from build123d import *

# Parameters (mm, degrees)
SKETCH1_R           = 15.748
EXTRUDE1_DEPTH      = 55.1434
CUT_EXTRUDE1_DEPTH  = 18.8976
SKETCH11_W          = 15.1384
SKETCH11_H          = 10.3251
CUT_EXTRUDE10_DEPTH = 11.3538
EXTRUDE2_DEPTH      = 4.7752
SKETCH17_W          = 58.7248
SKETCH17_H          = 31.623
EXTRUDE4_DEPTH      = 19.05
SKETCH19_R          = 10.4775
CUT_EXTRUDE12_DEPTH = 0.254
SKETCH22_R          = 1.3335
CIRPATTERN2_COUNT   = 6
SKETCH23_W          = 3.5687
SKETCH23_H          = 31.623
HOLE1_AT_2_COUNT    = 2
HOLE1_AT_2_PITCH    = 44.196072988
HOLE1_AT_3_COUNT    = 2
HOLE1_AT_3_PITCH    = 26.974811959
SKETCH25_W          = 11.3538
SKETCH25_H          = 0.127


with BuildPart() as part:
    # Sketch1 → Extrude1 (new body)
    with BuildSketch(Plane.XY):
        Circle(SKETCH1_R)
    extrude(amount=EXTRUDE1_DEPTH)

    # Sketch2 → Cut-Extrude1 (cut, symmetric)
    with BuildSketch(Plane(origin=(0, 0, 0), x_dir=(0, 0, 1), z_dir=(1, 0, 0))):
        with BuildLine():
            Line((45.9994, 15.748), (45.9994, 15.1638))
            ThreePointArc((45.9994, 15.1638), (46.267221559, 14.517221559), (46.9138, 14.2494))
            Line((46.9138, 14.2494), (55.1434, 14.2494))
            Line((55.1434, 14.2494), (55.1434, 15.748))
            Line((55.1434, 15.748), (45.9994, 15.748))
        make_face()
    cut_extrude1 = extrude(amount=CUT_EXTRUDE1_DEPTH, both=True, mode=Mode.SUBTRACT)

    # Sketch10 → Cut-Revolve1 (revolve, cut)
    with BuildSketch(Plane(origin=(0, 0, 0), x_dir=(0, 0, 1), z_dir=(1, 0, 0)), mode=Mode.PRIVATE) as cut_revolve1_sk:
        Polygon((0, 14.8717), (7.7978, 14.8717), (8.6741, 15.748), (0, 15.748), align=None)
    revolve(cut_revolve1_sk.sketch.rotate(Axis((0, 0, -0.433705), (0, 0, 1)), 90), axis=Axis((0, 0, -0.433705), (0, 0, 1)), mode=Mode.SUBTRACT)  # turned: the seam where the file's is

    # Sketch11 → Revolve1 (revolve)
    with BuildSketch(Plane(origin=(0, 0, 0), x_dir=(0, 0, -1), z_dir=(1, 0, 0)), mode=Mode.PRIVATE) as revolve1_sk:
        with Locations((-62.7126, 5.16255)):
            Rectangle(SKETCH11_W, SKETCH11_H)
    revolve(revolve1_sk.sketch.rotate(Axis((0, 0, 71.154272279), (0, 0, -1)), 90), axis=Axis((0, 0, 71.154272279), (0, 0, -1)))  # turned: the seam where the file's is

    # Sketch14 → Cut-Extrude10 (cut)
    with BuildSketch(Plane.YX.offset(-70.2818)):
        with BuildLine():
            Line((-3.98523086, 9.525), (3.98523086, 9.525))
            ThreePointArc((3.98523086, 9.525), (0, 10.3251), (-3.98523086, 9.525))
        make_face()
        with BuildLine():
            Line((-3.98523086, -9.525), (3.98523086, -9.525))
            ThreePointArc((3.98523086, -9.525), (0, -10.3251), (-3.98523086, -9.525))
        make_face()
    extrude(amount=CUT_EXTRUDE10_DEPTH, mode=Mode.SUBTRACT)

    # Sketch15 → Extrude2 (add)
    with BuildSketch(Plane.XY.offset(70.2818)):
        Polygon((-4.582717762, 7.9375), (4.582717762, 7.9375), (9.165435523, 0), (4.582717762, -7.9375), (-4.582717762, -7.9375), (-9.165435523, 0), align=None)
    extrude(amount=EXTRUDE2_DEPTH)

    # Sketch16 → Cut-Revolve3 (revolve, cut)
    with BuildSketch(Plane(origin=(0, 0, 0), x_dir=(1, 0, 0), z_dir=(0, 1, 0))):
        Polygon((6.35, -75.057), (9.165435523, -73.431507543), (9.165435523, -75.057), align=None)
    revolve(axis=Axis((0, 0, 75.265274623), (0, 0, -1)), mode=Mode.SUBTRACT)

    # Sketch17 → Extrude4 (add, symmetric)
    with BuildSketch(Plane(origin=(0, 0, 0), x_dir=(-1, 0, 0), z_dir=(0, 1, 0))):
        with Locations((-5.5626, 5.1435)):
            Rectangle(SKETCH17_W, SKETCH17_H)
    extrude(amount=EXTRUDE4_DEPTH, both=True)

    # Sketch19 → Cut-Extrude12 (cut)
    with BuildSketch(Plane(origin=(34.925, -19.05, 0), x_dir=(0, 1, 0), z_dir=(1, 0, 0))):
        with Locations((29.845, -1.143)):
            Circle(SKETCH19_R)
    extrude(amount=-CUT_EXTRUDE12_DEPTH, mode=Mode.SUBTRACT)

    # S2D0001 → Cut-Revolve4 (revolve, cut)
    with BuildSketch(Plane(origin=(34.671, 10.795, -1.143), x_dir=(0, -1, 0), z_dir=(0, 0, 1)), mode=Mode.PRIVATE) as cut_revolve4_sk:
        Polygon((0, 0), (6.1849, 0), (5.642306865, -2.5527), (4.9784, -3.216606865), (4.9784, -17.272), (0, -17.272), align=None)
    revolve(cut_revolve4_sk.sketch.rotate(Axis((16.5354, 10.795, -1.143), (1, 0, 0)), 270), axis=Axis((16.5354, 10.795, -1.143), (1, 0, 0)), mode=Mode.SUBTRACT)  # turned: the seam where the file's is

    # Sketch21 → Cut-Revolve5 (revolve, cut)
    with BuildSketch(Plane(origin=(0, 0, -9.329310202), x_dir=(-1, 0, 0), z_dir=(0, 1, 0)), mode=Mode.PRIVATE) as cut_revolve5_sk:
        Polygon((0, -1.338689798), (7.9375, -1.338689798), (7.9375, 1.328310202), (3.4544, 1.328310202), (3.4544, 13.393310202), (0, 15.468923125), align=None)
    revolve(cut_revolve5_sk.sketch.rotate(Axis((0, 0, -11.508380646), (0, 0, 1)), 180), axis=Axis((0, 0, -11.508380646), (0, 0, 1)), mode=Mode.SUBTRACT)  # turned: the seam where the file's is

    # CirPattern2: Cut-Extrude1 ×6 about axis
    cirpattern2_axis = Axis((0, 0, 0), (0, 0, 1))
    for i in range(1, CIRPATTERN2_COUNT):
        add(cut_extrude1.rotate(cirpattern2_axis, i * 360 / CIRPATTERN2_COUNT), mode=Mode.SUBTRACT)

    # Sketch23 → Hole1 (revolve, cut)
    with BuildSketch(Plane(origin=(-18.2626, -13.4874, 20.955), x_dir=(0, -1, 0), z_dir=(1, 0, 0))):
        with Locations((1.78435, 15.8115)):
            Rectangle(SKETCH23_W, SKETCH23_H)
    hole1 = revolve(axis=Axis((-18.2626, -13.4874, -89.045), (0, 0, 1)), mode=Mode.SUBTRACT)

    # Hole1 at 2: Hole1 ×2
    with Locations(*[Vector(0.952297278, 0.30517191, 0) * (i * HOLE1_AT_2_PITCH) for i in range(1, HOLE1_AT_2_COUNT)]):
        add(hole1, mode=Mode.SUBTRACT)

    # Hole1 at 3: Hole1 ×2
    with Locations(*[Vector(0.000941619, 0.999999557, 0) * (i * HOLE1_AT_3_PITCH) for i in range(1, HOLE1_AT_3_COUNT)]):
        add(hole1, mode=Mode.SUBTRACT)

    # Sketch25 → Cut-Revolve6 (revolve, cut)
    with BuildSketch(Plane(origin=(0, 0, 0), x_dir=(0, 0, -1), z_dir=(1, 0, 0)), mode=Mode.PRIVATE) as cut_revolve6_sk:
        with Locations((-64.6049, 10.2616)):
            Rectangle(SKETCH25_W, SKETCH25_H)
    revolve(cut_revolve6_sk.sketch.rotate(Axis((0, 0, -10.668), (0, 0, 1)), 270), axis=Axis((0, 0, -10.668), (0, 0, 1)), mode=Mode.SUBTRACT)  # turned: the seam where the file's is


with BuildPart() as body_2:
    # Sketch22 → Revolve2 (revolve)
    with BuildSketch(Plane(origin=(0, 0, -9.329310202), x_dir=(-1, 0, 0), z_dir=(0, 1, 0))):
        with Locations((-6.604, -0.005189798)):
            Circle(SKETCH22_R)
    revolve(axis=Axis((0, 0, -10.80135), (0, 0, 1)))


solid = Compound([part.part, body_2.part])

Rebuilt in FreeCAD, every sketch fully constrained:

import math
import FreeCAD as App
import Part
import Sketcher
Q = App.Units.Quantity

doc = App.newDocument("Part")
body = doc.addObject("PartDesign::Body", "Body")

sketch1 = body.newObject("Sketcher::SketchObject", "Sketch")
sketch1.AttachmentSupport = (doc.getObject("XY_Plane"), [""])
sketch1.MapMode = "FlatFace"
sketch1.addGeometry(Part.Circle(App.Vector(0, 0, 0), App.Vector(0, 0, 1), 16), False)
sketch1.addConstraint([
    Sketcher.Constraint("Coincident", 0, 3, -1, 1),
    Sketcher.Constraint("Diameter", 0, Q("1.24 in")),
])
pad1 = body.newObject("PartDesign::Pad", "Pad")
pad1.Profile = sketch1
pad1.Length = Q("2.171 in")

sketch2 = body.newObject("Sketcher::SketchObject", "Sketch001")
sketch2.AttachmentSupport = (doc.getObject("YZ_Plane"), [""])
sketch2.MapMode = "FlatFace"
sketch2.addGeometry([
    Part.LineSegment(App.Vector(-15.7, 46, 0), App.Vector(-15.2, 46, 0)),
    Part.ArcOfCircle(Part.Circle(App.Vector(-15.2, 46.9, 0), App.Vector(0, 0, 1), 0.9), math.radians(-90), math.radians(0)),
    Part.LineSegment(App.Vector(-14.2, 46.9, 0), App.Vector(-14.2, 55.1, 0)),
    Part.LineSegment(App.Vector(-14.2, 55.1, 0), App.Vector(-15.7, 55.1, 0)),
    Part.LineSegment(App.Vector(-15.7, 55.1, 0), App.Vector(-15.7, 46, 0)),
], False)
sketch2.addConstraint([
    Sketcher.Constraint("Tangent", 0, 2, 1, 1),
    Sketcher.Constraint("Tangent", 1, 2, 2, 1),
    Sketcher.Constraint("Coincident", 2, 2, 3, 1),
    Sketcher.Constraint("Coincident", 3, 2, 4, 1),
    Sketcher.Constraint("Coincident", 4, 2, 0, 1),
    Sketcher.Constraint("Horizontal", 0),
    Sketcher.Constraint("Vertical", 2),
    Sketcher.Constraint("Horizontal", 3),
    Sketcher.Constraint("Vertical", 4),
    Sketcher.Constraint("Radius", 1, Q("0.036 in")),
    Sketcher.Constraint("DistanceY", 4, 2, 4, 1, Q("0.36 in")),
    Sketcher.Constraint("DistanceX", 0, 1, 0, 2, Q("0.023 in")),
    Sketcher.Constraint("DistanceX", 3, 2, -1, 1, Q("0.62 in")),
    Sketcher.Constraint("DistanceY", -1, 1, 1, 3, Q("1.847 in")),
])
pocket1 = body.newObject("PartDesign::Pocket", "Pocket")
pocket1.Profile = sketch2
pocket1.Length = Q("1.488 in")
pocket1.Midplane = True

sketch3 = body.newObject("Sketcher::SketchObject", "Sketch002")
sketch3.AttachmentSupport = (doc.getObject("YZ_Plane"), [""])
sketch3.MapMode = "FlatFace"
sketch3.addGeometry([
    Part.LineSegment(App.Vector(-14.9, 0, 0), App.Vector(-14.9, 7.8, 0)),
    Part.LineSegment(App.Vector(-14.9, 7.8, 0), App.Vector(-15.7, 8.7, 0)),
    Part.LineSegment(App.Vector(-15.7, 8.7, 0), App.Vector(-15.7, 0, 0)),
    Part.LineSegment(App.Vector(-15.7, 0, 0), App.Vector(-14.9, 0, 0)),
], False)
sketch3.addConstraint([
    Sketcher.Constraint("Coincident", 0, 2, 1, 1),
    Sketcher.Constraint("Coincident", 1, 2, 2, 1),
    Sketcher.Constraint("Coincident", 2, 2, 3, 1),
    Sketcher.Constraint("Coincident", 3, 2, 0, 1),
    Sketcher.Constraint("Vertical", 0),
    Sketcher.Constraint("Vertical", 2),
    Sketcher.Constraint("Horizontal", 3),
    Sketcher.Constraint("PointOnObject", 2, 2, -1),
    Sketcher.Constraint("Angle", 1, Q("135 deg")),
    Sketcher.Constraint("DistanceY", 0, 1, 0, 2, Q("0.307 in")),
    Sketcher.Constraint("DistanceX", 1, 2, -1, 1, Q("0.62 in")),
    Sketcher.Constraint("DistanceX", 3, 1, 3, 2, Q("0.0345 in")),
])
groove = body.newObject("PartDesign::Groove", "Groove")
groove.Profile = sketch3
groove.ReferenceAxis = (sketch3, ["V_Axis"])
groove.Angle = 360

sketch4 = body.newObject("Sketcher::SketchObject", "Sketch003")
sketch4.AttachmentSupport = (doc.getObject("YZ_Plane"), [""])
sketch4.MapMode = "FlatFace"
sketch4.addGeometry([
    Part.LineSegment(App.Vector(10, 70, 0), App.Vector(0, 70, 0)),
    Part.LineSegment(App.Vector(0, 70, 0), App.Vector(0, 55, 0)),
    Part.LineSegment(App.Vector(0, 55, 0), App.Vector(10, 55, 0)),
    Part.LineSegment(App.Vector(10, 55, 0), App.Vector(10, 70, 0)),
], False)
sketch4.addConstraint([
    Sketcher.Constraint("Coincident", 0, 2, 1, 1),
    Sketcher.Constraint("Coincident", 1, 2, 2, 1),
    Sketcher.Constraint("Coincident", 2, 2, 3, 1),
    Sketcher.Constraint("Coincident", 3, 2, 0, 1),
    Sketcher.Constraint("Horizontal", 0),
    Sketcher.Constraint("Vertical", 1),
    Sketcher.Constraint("Horizontal", 2),
    Sketcher.Constraint("Vertical", 3),
    Sketcher.Constraint("PointOnObject", 0, 2, -2),
    Sketcher.Constraint("DistanceY", 1, 2, 1, 1, Q("0.596 in")),
    Sketcher.Constraint("DistanceX", 0, 2, 0, 1, Q("0.4065 in")),
    Sketcher.Constraint("DistanceY", -1, 1, 0, 2, Q("2.767 in")),
])
revolution = body.newObject("PartDesign::Revolution", "Revolution")
revolution.Profile = sketch4
revolution.ReferenceAxis = (sketch4, ["V_Axis"])
revolution.Angle = 360

sketch5 = body.newObject("Sketcher::SketchObject", "Sketch004")
sketch5.AttachmentSupport = (doc.getObject("XY_Plane"), [""])
sketch5.MapMode = "FlatFace"
sketch5.AttachmentOffset = App.Placement(App.Vector(0, 0, 2.767 * 25.4), App.Rotation())
sketch5.addGeometry([
    Part.LineSegment(App.Vector(10, -4, 0), App.Vector(10, 4, 0)),
    Part.ArcOfCircle(Part.Circle(App.Vector(0, 0, 0), App.Vector(0, 0, 1), 10), math.radians(-23), math.radians(23)),
    Part.LineSegment(App.Vector(-10, 4, 0), App.Vector(-10, -4, 0)),
    Part.ArcOfCircle(Part.Circle(App.Vector(0, 0, 0), App.Vector(0, 0, 1), 10), math.radians(157), math.radians(203)),
], False)
sketch5.addConstraint([
    Sketcher.Constraint("Coincident", 0, 1, 1, 1),
    Sketcher.Constraint("Coincident", 1, 2, 0, 2),
    Sketcher.Constraint("Coincident", 2, 1, 3, 1),
    Sketcher.Constraint("Coincident", 3, 2, 2, 2),
    Sketcher.Constraint("Vertical", 0),
    Sketcher.Constraint("Vertical", 2),
    Sketcher.Constraint("Coincident", 1, 3, -1, 1),
    Sketcher.Constraint("Coincident", 3, 3, -1, 1),
    Sketcher.Constraint("Equal", 1, 3),
    Sketcher.Constraint("Horizontal", 1, 2, 2, 1),
    Sketcher.Constraint("Radius", 1, Q("0.4065 in")),
    Sketcher.Constraint("DistanceX", 2, 1, 1, 2, Q("0.75 in")),
])
pocket2 = body.newObject("PartDesign::Pocket", "Pocket001")
pocket2.Profile = sketch5
pocket2.Length = Q("0.447 in")

sketch6 = body.newObject("Sketcher::SketchObject", "Sketch005")
sketch6.AttachmentSupport = (doc.getObject("XY_Plane"), [""])
sketch6.MapMode = "FlatFace"
sketch6.AttachmentOffset = App.Placement(App.Vector(0, 0, 2.767 * 25.4), App.Rotation())
sketch6.addGeometry([
    Part.LineSegment(App.Vector(5, 8, 0), App.Vector(-5, 8, 0)),
    Part.LineSegment(App.Vector(-5, 8, 0), App.Vector(-9, 0, 0)),
    Part.LineSegment(App.Vector(-9, 0, 0), App.Vector(-5, -8, 0)),
    Part.LineSegment(App.Vector(-5, -8, 0), App.Vector(5, -8, 0)),
    Part.LineSegment(App.Vector(5, -8, 0), App.Vector(9, 0, 0)),
    Part.LineSegment(App.Vector(9, 0, 0), App.Vector(5, 8, 0)),
], False)
sketch6.addConstraint([
    Sketcher.Constraint("Coincident", 0, 2, 1, 1),
    Sketcher.Constraint("Coincident", 1, 2, 2, 1),
    Sketcher.Constraint("Coincident", 2, 2, 3, 1),
    Sketcher.Constraint("Coincident", 3, 2, 4, 1),
    Sketcher.Constraint("Coincident", 4, 2, 5, 1),
    Sketcher.Constraint("Coincident", 5, 2, 0, 1),
    Sketcher.Constraint("Horizontal", 0),
    Sketcher.Constraint("Horizontal", 3),
    Sketcher.Constraint("Symmetric", 0, 2, 3, 2, -1, 1),
    Sketcher.Constraint("Symmetric", 1, 2, 4, 2, -1, 1),
    Sketcher.Constraint("PointOnObject", 1, 2, -1),
    Sketcher.Constraint("Parallel", 2, 5),
    Sketcher.Constraint("Vertical", 0, 2, 2, 2),
    Sketcher.Constraint("Angle", 1, Q("-120 deg")),
    Sketcher.Constraint("DistanceY", -1, 1, 0, 2, Q("0.3125 in")),
    Sketcher.Constraint("DistanceX", 0, 2, 0, 1, 9.165436),
])
pad2 = body.newObject("PartDesign::Pad", "Pad001")
pad2.Profile = sketch6
pad2.Length = Q("0.188 in")

sketch7 = body.newObject("Sketcher::SketchObject", "Sketch006")
sketch7.AttachmentSupport = (doc.getObject("XZ_Plane"), [""])
sketch7.MapMode = "FlatFace"
sketch7.addGeometry([
    Part.LineSegment(App.Vector(9.2, 73.4, 0), App.Vector(6.3, 75.1, 0)),
    Part.LineSegment(App.Vector(6.3, 75.1, 0), App.Vector(9.2, 75.1, 0)),
    Part.LineSegment(App.Vector(9.2, 75.1, 0), App.Vector(9.2, 73.4, 0)),
], False)
sketch7.addConstraint([
    Sketcher.Constraint("Coincident", 0, 2, 1, 1),
    Sketcher.Constraint("Coincident", 1, 2, 2, 1),
    Sketcher.Constraint("Coincident", 2, 2, 0, 1),
    Sketcher.Constraint("Horizontal", 1),
    Sketcher.Constraint("Vertical", 2),
    Sketcher.Constraint("Angle", 0, Q("150 deg")),
    Sketcher.Constraint("DistanceX", -1, 1, 0, 2, Q("0.25 in")),
    Sketcher.Constraint("DistanceY", -1, 1, 0, 2, Q("2.955 in")),
    Sketcher.Constraint("DistanceX", 1, 1, 1, 2, 2.815436),
])
groove2 = body.newObject("PartDesign::Groove", "Groove001")
groove2.Profile = sketch7
groove2.ReferenceAxis = (sketch7, ["V_Axis"])
groove2.Angle = 360

sketch8 = body.newObject("Sketcher::SketchObject", "Sketch007")
sketch8.AttachmentSupport = (doc.getObject("XZ_Plane"), [""])
sketch8.MapMode = "FlatFace"
sketch8.addGeometry([
    Part.LineSegment(App.Vector(35, 21, 0), App.Vector(35, -11, 0)),
    Part.LineSegment(App.Vector(35, -11, 0), App.Vector(-24, -11, 0)),
    Part.LineSegment(App.Vector(-24, -11, 0), App.Vector(-24, 21, 0)),
    Part.LineSegment(App.Vector(-24, 21, 0), App.Vector(35, 21, 0)),
], False)
sketch8.addConstraint([
    Sketcher.Constraint("Coincident", 0, 2, 1, 1),
    Sketcher.Constraint("Coincident", 1, 2, 2, 1),
    Sketcher.Constraint("Coincident", 2, 2, 3, 1),
    Sketcher.Constraint("Coincident", 3, 2, 0, 1),
    Sketcher.Constraint("Vertical", 0),
    Sketcher.Constraint("Horizontal", 1),
    Sketcher.Constraint("Vertical", 2),
    Sketcher.Constraint("Horizontal", 3),
    Sketcher.Constraint("DistanceX", 1, 2, 1, 1, Q("2.312 in")),
    Sketcher.Constraint("DistanceY", 0, 2, 0, 1, Q("1.245 in")),
    Sketcher.Constraint("DistanceY", 0, 2, -1, 1, Q("0.42 in")),
    Sketcher.Constraint("DistanceX", -1, 1, 0, 2, Q("1.375 in")),
])
pad3 = body.newObject("PartDesign::Pad", "Pad002")
pad3.Profile = sketch8
pad3.Length = Q("1.5 in")
pad3.Midplane = True

sketch9 = body.newObject("Sketcher::SketchObject", "Sketch008")
sketch9.AttachmentSupport = (doc.getObject("YZ_Plane"), [""])
sketch9.MapMode = "FlatFace"
sketch9.AttachmentOffset = App.Placement(App.Vector(0, 0, 1.375 * 25.4), App.Rotation())
sketch9.addGeometry(Part.Circle(App.Vector(11, -1, 0), App.Vector(0, 0, 1), 10), False)
sketch9.addConstraint([
    Sketcher.Constraint("Diameter", 0, Q("0.825 in")),
    Sketcher.Constraint("DistanceX", -1, 1, 0, 3, Q("0.425 in")),
    Sketcher.Constraint("DistanceY", 0, 3, -1, 1, Q("0.045 in")),
])
pocket3 = body.newObject("PartDesign::Pocket", "Pocket002")
pocket3.Profile = sketch9
pocket3.Length = Q("0.01 in")

sketch10 = body.newObject("Sketcher::SketchObject", "Sketch009")
sketch10.AttachmentSupport = (doc.getObject("XY_Plane"), [""])
sketch10.MapMode = "FlatFace"
sketch10.AttachmentOffset = App.Placement(App.Vector(0, 0, -0.045 * 25.4), App.Rotation())
sketch10.addGeometry([
    Part.LineSegment(App.Vector(34.7, 4.6, 0), App.Vector(34.7, 10.8, 0)),
    Part.LineSegment(App.Vector(34.7, 10.8, 0), App.Vector(17.4, 10.8, 0)),
    Part.LineSegment(App.Vector(17.4, 10.8, 0), App.Vector(17.4, 5.8, 0)),
    Part.LineSegment(App.Vector(17.4, 5.8, 0), App.Vector(31.5, 5.8, 0)),
    Part.LineSegment(App.Vector(31.5, 5.8, 0), App.Vector(32.1, 5.2, 0)),
    Part.LineSegment(App.Vector(32.1, 5.2, 0), App.Vector(34.7, 4.6, 0)),
], False)
sketch10.addGeometry(Part.LineSegment(App.Vector(17.4, 10.8, 0), App.Vector(34.7, 10.8, 0)), True)
sketch10.addConstraint([
    Sketcher.Constraint("Coincident", 0, 2, 1, 1),
    Sketcher.Constraint("Coincident", 1, 2, 2, 1),
    Sketcher.Constraint("Coincident", 2, 2, 3, 1),
    Sketcher.Constraint("Coincident", 3, 2, 4, 1),
    Sketcher.Constraint("Coincident", 4, 2, 5, 1),
    Sketcher.Constraint("Coincident", 5, 2, 0, 1),
    Sketcher.Constraint("Vertical", 0),
    Sketcher.Constraint("Horizontal", 1),
    Sketcher.Constraint("Vertical", 2),
    Sketcher.Constraint("Horizontal", 3),
    Sketcher.Constraint("Horizontal", 6),
    Sketcher.Constraint("Coincident", 6, 1, 1, 2),
    Sketcher.Constraint("Vertical", 5, 2, 6, 2),
    Sketcher.Constraint("Angle", 4, Q("-45 deg")),
    Sketcher.Constraint("Angle", 5, Q("-12 deg")),
    Sketcher.Constraint("DistanceX", 1, 2, 1, 1, Q("0.68 in")),
    Sketcher.Constraint("DistanceY", 2, 2, 2, 1, Q("0.196 in")),
    Sketcher.Constraint("DistanceY", 0, 1, 0, 2, Q("0.2435 in")),
    Sketcher.Constraint("DistanceX", -1, 1, 0, 2, Q("1.365 in")),
    Sketcher.Constraint("DistanceY", -1, 1, 0, 2, Q("0.425 in")),
    Sketcher.Constraint("DistanceX", -1, 1, 4, 2, Q("1.2645 in")),
])
groove3 = body.newObject("PartDesign::Groove", "Groove002")
groove3.Profile = sketch10
groove3.ReferenceAxis = (sketch10, ["Axis0"])
groove3.Angle = 360

sketch11 = body.newObject("Sketcher::SketchObject", "Sketch010")
sketch11.AttachmentSupport = (doc.getObject("XZ_Plane"), [""])
sketch11.MapMode = "FlatFace"
sketch11.addGeometry([
    Part.LineSegment(App.Vector(0, -10.7, 0), App.Vector(-7.9, -10.7, 0)),
    Part.LineSegment(App.Vector(-7.9, -10.7, 0), App.Vector(-7.9, -8, 0)),
    Part.LineSegment(App.Vector(-7.9, -8, 0), App.Vector(-3.5, -8, 0)),
    Part.LineSegment(App.Vector(-3.5, -8, 0), App.Vector(-3.5, 4.1, 0)),
    Part.LineSegment(App.Vector(-3.5, 4.1, 0), App.Vector(0, 6.1, 0)),
    Part.LineSegment(App.Vector(0, 6.1, 0), App.Vector(0, -10.7, 0)),
], False)
sketch11.addConstraint([
    Sketcher.Constraint("Coincident", 0, 2, 1, 1),
    Sketcher.Constraint("Coincident", 1, 2, 2, 1),
    Sketcher.Constraint("Coincident", 2, 2, 3, 1),
    Sketcher.Constraint("Coincident", 3, 2, 4, 1),
    Sketcher.Constraint("Coincident", 4, 2, 5, 1),
    Sketcher.Constraint("Coincident", 5, 2, 0, 1),
    Sketcher.Constraint("Horizontal", 0),
    Sketcher.Constraint("Vertical", 1),
    Sketcher.Constraint("Horizontal", 2),
    Sketcher.Constraint("Vertical", 3),
    Sketcher.Constraint("Vertical", 5),
    Sketcher.Constraint("PointOnObject", 4, 2, -2),
    Sketcher.Constraint("Angle", 4, Q("31 deg")),
    Sketcher.Constraint("DistanceX", 0, 2, 0, 1, Q("0.3125 in")),
    Sketcher.Constraint("DistanceY", 1, 1, 1, 2, Q("0.105 in")),
    Sketcher.Constraint("DistanceY", 3, 1, 3, 2, Q("0.475 in")),
    Sketcher.Constraint("DistanceY", 0, 2, -1, 1, Q("0.42 in")),
    Sketcher.Constraint("DistanceX", 2, 1, 2, 2, Q("0.1765 in")),
])
groove4 = body.newObject("PartDesign::Groove", "Groove003")
groove4.Profile = sketch11
groove4.ReferenceAxis = (sketch11, ["V_Axis"])
groove4.Angle = 360
doc.recompute()

polarpattern = body.newObject("PartDesign::PolarPattern", "PolarPattern")
polarpattern.Originals = [pocket1]
polarpattern.Axis = (doc.getObject("Z_Axis"), [""])
polarpattern.Angle = 360
polarpattern.Occurrences = 6
body.Tip = polarpattern

sketch12 = body.newObject("Sketcher::SketchObject", "Sketch011")
sketch12.AttachmentSupport = (doc.getObject("YZ_Plane"), [""])
sketch12.MapMode = "FlatFace"
sketch12.AttachmentOffset = App.Placement(App.Vector(0, 0, -0.719 * 25.4), App.Rotation())
sketch12.addGeometry([
    Part.LineSegment(App.Vector(-13.5, -10.7, 0), App.Vector(-13.5, 21, 0)),
    Part.LineSegment(App.Vector(-13.5, 21, 0), App.Vector(-17.1, 21, 0)),
    Part.LineSegment(App.Vector(-17.1, 21, 0), App.Vector(-17.1, -10.7, 0)),
    Part.LineSegment(App.Vector(-17.1, -10.7, 0), App.Vector(-13.5, -10.7, 0)),
], False)
sketch12.addGeometry(Part.LineSegment(App.Vector(-13.5, -10.7, 0), App.Vector(-13.5, 21, 0)), True)
sketch12.addConstraint([
    Sketcher.Constraint("Coincident", 0, 2, 1, 1),
    Sketcher.Constraint("Coincident", 1, 2, 2, 1),
    Sketcher.Constraint("Coincident", 2, 2, 3, 1),
    Sketcher.Constraint("Coincident", 3, 2, 0, 1),
    Sketcher.Constraint("Vertical", 0),
    Sketcher.Constraint("Horizontal", 1),
    Sketcher.Constraint("Vertical", 2),
    Sketcher.Constraint("Horizontal", 3),
    Sketcher.Constraint("Vertical", 4),
    Sketcher.Constraint("Coincident", 4, 1, 3, 2),
    Sketcher.Constraint("Horizontal", 1, 2, 4, 2),
    Sketcher.Constraint("DistanceY", 0, 1, 0, 2, Q("1.245 in")),
    Sketcher.Constraint("DistanceY", 2, 2, -1, 1, Q("0.42 in")),
    Sketcher.Constraint("DistanceX", 1, 2, 1, 1, Q("0.1405 in")),
    Sketcher.Constraint("DistanceX", 0, 2, -1, 1, Q("0.531 in")),
])
groove5 = body.newObject("PartDesign::Groove", "Groove004")
groove5.Profile = sketch12
groove5.ReferenceAxis = (sketch12, ["Axis0"])
groove5.Angle = 360
doc.recompute()

datumline = body.newObject("PartDesign::Line", "DatumLine")
datumline.Placement = App.Placement(App.Vector(0, 0, 0), App.Rotation(App.Vector(0, 0, 1), App.Vector(0.952297278, 0.30517191, 0)))
linearpattern = body.newObject("PartDesign::LinearPattern", "LinearPattern")
linearpattern.Originals = [groove5]
linearpattern.Direction = (datumline, [""])
linearpattern.Mode = "offset"
linearpattern.Offset = 44.196073
linearpattern.Occurrences = 2
body.Tip = linearpattern
doc.recompute()

datumline2 = body.newObject("PartDesign::Line", "DatumLine001")
datumline2.Placement = App.Placement(App.Vector(0, 0, 0), App.Rotation(App.Vector(0, 0, 1), App.Vector(0.000941619, 0.999999557, 0)))
linearpattern2 = body.newObject("PartDesign::LinearPattern", "LinearPattern001")
linearpattern2.Originals = [groove5]
linearpattern2.Direction = (datumline2, [""])
linearpattern2.Mode = "offset"
linearpattern2.Offset = 26.974812
linearpattern2.Occurrences = 2
body.Tip = linearpattern2

sketch13 = body.newObject("Sketcher::SketchObject", "Sketch012")
sketch13.AttachmentSupport = (doc.getObject("YZ_Plane"), [""])
sketch13.MapMode = "FlatFace"
sketch13.addGeometry([
    Part.LineSegment(App.Vector(10.33, 70.28, 0), App.Vector(10.2, 70.28, 0)),
    Part.LineSegment(App.Vector(10.2, 70.28, 0), App.Vector(10.2, 58.93, 0)),
    Part.LineSegment(App.Vector(10.2, 58.93, 0), App.Vector(10.33, 58.93, 0)),
    Part.LineSegment(App.Vector(10.33, 58.93, 0), App.Vector(10.33, 70.28, 0)),
], False)
sketch13.addConstraint([
    Sketcher.Constraint("Coincident", 0, 2, 1, 1),
    Sketcher.Constraint("Coincident", 1, 2, 2, 1),
    Sketcher.Constraint("Coincident", 2, 2, 3, 1),
    Sketcher.Constraint("Coincident", 3, 2, 0, 1),
    Sketcher.Constraint("Horizontal", 0),
    Sketcher.Constraint("Vertical", 1),
    Sketcher.Constraint("Horizontal", 2),
    Sketcher.Constraint("Vertical", 3),
    Sketcher.Constraint("DistanceX", 0, 2, 0, 1, Q("0.005 in")),
    Sketcher.Constraint("DistanceY", 1, 2, 1, 1, Q("0.447 in")),
    Sketcher.Constraint("DistanceY", -1, 1, 1, 2, Q("2.32 in")),
    Sketcher.Constraint("DistanceX", -1, 1, 0, 2, Q("0.4015 in")),
])
groove6 = body.newObject("PartDesign::Groove", "Groove005")
groove6.Profile = sketch13
groove6.ReferenceAxis = (sketch13, ["V_Axis"])
groove6.Angle = 360
body2 = doc.addObject("PartDesign::Body", "Body001")

sketch14 = body2.newObject("Sketcher::SketchObject", "Sketch013")
sketch14.AttachmentSupport = (doc.getObject("XZ_Plane001"), [""])
sketch14.MapMode = "FlatFace"
sketch14.addGeometry(Part.Circle(App.Vector(6.6, -9.3, 0), App.Vector(0, 0, 1), 1.3), False)
sketch14.addConstraint([
    Sketcher.Constraint("Diameter", 0, Q("0.105 in")),
    Sketcher.Constraint("DistanceX", -1, 1, 0, 3, Q("0.26 in")),
    Sketcher.Constraint("DistanceY", 0, 3, -1, 1, Q("0.3675 in")),
])
revolution2 = body2.newObject("PartDesign::Revolution", "Revolution001")
revolution2.Profile = sketch14
revolution2.ReferenceAxis = (sketch14, ["V_Axis"])
revolution2.Angle = 360

doc.recompute()
